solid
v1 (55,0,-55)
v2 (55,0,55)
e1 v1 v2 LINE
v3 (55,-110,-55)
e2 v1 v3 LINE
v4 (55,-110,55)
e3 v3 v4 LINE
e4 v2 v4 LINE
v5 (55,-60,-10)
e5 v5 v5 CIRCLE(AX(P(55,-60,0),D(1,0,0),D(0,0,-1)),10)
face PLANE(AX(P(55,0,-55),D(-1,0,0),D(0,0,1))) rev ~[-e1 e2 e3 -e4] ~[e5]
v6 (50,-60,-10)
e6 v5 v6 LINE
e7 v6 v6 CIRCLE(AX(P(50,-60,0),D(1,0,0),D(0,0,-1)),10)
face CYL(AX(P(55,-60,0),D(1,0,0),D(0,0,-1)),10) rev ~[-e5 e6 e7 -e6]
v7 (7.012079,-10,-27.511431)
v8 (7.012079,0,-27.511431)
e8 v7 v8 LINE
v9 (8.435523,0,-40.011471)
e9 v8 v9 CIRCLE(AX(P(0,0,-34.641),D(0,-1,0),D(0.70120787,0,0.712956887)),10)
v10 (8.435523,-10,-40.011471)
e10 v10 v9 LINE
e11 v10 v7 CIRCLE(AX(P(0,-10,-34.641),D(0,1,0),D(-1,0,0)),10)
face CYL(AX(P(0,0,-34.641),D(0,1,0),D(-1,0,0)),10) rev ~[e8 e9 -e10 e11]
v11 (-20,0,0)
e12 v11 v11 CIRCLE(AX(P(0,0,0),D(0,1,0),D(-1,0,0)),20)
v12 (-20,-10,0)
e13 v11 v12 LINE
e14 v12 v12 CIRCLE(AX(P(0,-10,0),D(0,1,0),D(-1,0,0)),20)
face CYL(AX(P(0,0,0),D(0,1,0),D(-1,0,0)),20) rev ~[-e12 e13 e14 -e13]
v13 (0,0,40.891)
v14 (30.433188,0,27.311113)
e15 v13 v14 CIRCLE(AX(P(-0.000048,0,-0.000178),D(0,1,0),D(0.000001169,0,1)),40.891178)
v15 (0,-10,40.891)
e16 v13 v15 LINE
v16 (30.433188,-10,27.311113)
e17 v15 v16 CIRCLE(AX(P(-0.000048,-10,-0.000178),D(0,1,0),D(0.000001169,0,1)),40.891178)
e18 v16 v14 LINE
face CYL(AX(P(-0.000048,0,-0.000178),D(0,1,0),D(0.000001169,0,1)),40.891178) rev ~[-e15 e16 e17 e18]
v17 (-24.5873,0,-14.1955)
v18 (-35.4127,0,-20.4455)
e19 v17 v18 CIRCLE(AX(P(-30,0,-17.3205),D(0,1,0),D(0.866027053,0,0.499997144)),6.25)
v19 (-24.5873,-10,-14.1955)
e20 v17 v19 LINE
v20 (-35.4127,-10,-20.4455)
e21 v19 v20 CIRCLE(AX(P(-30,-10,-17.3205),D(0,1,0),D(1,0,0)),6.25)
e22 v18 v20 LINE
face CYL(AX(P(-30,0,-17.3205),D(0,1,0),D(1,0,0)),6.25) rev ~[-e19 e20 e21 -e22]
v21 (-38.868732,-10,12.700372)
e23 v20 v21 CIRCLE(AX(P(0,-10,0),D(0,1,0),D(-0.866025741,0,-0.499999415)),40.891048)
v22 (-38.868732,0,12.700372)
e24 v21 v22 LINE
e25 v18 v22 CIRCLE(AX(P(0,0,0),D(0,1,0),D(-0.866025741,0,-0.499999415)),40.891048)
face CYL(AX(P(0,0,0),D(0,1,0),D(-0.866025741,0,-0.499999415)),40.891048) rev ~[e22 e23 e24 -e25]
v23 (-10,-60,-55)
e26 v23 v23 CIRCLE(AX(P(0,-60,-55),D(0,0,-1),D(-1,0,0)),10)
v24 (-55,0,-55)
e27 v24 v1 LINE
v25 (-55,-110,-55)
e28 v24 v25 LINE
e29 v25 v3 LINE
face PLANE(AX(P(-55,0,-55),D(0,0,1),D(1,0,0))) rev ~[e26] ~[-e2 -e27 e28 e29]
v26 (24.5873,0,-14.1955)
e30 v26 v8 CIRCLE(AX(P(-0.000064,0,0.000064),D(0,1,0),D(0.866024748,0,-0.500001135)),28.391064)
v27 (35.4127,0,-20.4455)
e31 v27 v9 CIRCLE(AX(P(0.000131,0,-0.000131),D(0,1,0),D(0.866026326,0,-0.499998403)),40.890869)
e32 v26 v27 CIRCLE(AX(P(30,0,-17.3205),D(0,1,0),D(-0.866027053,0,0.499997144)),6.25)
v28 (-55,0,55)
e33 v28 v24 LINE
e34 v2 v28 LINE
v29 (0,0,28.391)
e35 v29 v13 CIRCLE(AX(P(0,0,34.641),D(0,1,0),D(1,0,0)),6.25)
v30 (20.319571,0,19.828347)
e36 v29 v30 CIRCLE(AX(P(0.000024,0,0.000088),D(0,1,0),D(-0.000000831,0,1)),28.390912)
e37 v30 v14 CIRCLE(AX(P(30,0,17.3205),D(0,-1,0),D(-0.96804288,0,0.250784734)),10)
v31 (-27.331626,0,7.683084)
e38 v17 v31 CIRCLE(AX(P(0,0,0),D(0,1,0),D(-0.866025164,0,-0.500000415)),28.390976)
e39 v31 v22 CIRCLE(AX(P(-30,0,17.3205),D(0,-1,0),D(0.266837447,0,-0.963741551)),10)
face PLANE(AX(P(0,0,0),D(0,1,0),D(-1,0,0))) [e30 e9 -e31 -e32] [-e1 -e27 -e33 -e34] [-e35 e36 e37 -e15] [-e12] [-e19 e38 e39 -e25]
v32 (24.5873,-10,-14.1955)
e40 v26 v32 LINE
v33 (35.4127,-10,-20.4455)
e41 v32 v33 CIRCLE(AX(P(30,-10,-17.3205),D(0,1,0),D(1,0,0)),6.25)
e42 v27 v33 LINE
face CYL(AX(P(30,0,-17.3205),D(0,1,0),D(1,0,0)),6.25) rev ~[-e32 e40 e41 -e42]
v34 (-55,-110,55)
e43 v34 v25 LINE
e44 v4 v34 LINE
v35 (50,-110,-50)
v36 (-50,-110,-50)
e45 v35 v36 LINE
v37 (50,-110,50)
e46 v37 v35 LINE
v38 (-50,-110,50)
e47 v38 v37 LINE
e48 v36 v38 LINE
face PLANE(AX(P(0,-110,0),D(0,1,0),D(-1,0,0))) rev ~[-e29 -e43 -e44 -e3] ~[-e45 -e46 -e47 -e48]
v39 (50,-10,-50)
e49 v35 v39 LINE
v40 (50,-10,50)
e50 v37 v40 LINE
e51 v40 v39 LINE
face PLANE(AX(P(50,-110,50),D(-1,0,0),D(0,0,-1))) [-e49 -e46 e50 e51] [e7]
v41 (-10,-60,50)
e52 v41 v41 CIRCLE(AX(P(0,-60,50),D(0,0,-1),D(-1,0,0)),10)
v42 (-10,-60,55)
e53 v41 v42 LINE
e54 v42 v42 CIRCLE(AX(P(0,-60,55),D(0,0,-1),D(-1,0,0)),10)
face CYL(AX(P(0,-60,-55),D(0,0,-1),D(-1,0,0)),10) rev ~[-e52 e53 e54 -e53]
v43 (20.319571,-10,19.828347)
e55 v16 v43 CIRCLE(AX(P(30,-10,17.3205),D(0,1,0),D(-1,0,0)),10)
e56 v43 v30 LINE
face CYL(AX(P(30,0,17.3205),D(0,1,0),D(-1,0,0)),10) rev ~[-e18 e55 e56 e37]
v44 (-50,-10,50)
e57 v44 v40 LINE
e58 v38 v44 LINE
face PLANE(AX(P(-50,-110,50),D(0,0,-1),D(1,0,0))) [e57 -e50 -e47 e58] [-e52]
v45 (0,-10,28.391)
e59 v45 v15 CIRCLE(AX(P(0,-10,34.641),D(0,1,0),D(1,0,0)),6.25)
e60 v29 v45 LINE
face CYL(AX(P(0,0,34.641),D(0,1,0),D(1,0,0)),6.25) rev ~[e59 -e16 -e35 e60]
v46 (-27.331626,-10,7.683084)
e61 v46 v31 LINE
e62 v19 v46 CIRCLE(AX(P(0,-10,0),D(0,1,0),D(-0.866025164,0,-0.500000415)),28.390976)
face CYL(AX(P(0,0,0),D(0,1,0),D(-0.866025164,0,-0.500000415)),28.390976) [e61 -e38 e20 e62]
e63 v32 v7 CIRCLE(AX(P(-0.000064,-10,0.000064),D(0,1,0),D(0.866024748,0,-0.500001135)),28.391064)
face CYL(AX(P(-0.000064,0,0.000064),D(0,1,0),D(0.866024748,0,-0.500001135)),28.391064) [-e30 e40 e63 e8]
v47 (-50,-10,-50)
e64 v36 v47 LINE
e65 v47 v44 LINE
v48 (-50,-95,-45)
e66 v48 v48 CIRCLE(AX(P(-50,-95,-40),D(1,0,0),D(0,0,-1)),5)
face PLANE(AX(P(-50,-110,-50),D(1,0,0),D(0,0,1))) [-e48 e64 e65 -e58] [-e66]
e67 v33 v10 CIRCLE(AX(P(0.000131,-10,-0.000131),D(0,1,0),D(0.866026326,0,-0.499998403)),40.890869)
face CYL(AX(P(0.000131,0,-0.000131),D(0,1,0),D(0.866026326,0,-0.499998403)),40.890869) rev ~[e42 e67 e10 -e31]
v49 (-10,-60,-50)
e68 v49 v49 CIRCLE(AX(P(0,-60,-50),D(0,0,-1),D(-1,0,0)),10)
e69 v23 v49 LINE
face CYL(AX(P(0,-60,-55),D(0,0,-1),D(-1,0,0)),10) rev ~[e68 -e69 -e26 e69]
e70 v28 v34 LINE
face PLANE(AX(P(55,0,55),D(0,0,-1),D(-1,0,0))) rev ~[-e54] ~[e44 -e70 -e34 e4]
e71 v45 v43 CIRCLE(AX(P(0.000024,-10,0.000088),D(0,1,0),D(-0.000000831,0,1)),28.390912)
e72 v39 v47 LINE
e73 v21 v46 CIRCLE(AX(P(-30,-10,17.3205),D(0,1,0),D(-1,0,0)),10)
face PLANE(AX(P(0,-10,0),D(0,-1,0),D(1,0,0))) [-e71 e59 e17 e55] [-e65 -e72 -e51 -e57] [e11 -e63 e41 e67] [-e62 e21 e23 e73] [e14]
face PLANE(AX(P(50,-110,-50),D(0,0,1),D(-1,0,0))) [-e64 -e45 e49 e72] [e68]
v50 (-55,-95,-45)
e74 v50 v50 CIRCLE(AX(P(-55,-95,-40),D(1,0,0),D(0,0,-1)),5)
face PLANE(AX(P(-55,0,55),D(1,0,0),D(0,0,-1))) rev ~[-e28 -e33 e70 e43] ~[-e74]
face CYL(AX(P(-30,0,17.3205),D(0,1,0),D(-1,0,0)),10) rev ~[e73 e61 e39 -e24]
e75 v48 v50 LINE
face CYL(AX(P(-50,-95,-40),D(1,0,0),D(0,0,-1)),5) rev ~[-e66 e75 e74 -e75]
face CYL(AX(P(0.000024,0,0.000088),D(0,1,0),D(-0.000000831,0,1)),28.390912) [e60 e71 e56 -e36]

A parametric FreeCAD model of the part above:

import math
import FreeCAD as App
import Part
import Sketcher
from FreeCAD import Vector
Q = App.Units.Quantity


def add_polygon(sketch, points):
    """Adds a closed chain of lines whose ends are joined by coincident constraints."""
    first, n = sketch.GeometryCount, len(points)
    for a, b in zip(points, points[1:] + points[:1]):
        sketch.addGeometry(Part.LineSegment(App.Vector(*a, 0), App.Vector(*b, 0)), False)
    for i in range(n):
        sketch.addConstraint(Sketcher.Constraint("Coincident", first + i, 2, first + (i + 1) % n, 1))

doc = App.newDocument("Part")
params = doc.addObject("Spreadsheet::Sheet", "Params")
for row, (alias, value) in enumerate([
    ("sketch1_diameter", "20 mm"),
    ("sketch1_diameter2", "40 mm"),
    ("pad1_length", "110 mm"),
    ("sketch2_radius", "6.25 mm"),
    ("sketch3_width", "100 mm"),
    ("pocket2_length", "100 mm"),
    ("sketch4_diameter", "20 mm"),
    ("sketch5_diameter", "20 mm"),
    ("sketch6_diameter", "10 mm"),
], start=1):
    params.set(f"A{row}", alias)
    params.set(f"B{row}", "=" + value)
    params.setAlias(f"B{row}", alias)

body = doc.addObject("PartDesign::Body", "Body")

# Sketch on XZ plane
sketch1 = body.newObject("Sketcher::SketchObject", "Sketch")
sketch1.AttachmentSupport = (doc.getObject("XZ_Plane"), [""])
sketch1.MapMode = "FlatFace"
add_polygon(sketch1, [(55, -55), (-55, -55), (-55, 55), (55, 55)])  # lines 0-3
sketch1.addGeometry(Part.Circle(Vector(0, -35, 0), Vector(0, 0, 1), 10), False)  # 4
sketch1.addGeometry(Part.Circle(Vector(30, 17, 0), Vector(0, 0, 1), 10), False)  # 5
sketch1.addGeometry(Part.Circle(Vector(0, 0, 0), Vector(0, 0, 1), 20), False)  # 6
sketch1.addGeometry(Part.Circle(Vector(-30, 17, 0), Vector(0, 0, 1), 10), False)  # 7
sketch1.addConstraint([
    Sketcher.Constraint("Horizontal", 0),
    Sketcher.Constraint("Vertical", 1),
    Sketcher.Constraint("Horizontal", 2),
    Sketcher.Constraint("Vertical", 3),
    Sketcher.Constraint("Coincident", 6, 3, -1, 1),
    Sketcher.Constraint("Equal", 4, 5),
    Sketcher.Constraint("Equal", 5, 7),
    Sketcher.Constraint("Symmetric", 0, 2, 2, 2, -1, 1),
    Sketcher.Constraint("Symmetric", 5, 3, 7, 3, -2),
    Sketcher.Constraint("PointOnObject", 4, 3, -2),
    Sketcher.Constraint("Equal", 2, 1),
    Sketcher.Constraint("Diameter", 4, Q("20 mm")),
    Sketcher.Constraint("Diameter", 6, Q("40 mm")),
    Sketcher.Constraint("DistanceX", 0, 2, -1, 1, Q("55 mm")),
    Sketcher.Constraint("DistanceX", 7, 3, 5, 3, Q("60 mm")),
    Sketcher.Constraint("DistanceY", 4, 3, -1, 1, Q("34.641 mm")),
    Sketcher.Constraint("DistanceY", -1, 1, 5, 3, Q("17.3205 mm")),
])
sketch1.setExpression("Constraints[15]", "Params.sketch1_diameter")
sketch1.setExpression("Constraints[16]", "Params.sketch1_diameter2")
pad1 = body.newObject("PartDesign::Pad", "Pad")
pad1.Profile = sketch1
pad1.setExpression("Length", "Params.pad1_length")

# Sketch on XZ plane
sketch2 = body.newObject("Sketcher::SketchObject", "Sketch001")
sketch2.AttachmentSupport = (doc.getObject("XZ_Plane"), [""])
sketch2.MapMode = "FlatFace"
sketch2.addGeometry([
    Part.ArcOfCircle(Part.Circle(Vector(0, 0, 0), Vector(0, 0, 1), 28), math.radians(150), math.radians(210)),  # 0
    Part.ArcOfCircle(Part.Circle(Vector(-30, -17, 0), Vector(0, 0, 1), 6), math.radians(-150), math.radians(30)),  # 1
    Part.ArcOfCircle(Part.Circle(Vector(0, 0, 0), Vector(0, 0, 1), 41), math.radians(150), math.radians(210)),  # 2
    Part.ArcOfCircle(Part.Circle(Vector(-30, 17, 0), Vector(0, 0, 1), 6), math.radians(150), math.radians(330)),  # 3
    Part.ArcOfCircle(Part.Circle(Vector(0, 0, 0), Vector(0, 0, 1), 28), math.radians(30), math.radians(90)),  # 4
    Part.ArcOfCircle(Part.Circle(Vector(0, 35, 0), Vector(0, 0, 1), 6), math.radians(90), math.radians(270)),  # 5
    Part.ArcOfCircle(Part.Circle(Vector(0, 0, 0), Vector(0, 0, 1), 41), math.radians(30), math.radians(90)),  # 6
    Part.ArcOfCircle(Part.Circle(Vector(30, 17, 0), Vector(0, 0, 1), 6), math.radians(30), math.radians(210)),  # 7
    Part.ArcOfCircle(Part.Circle(Vector(0, 0, 0), Vector(0, 0, 1), 28), math.radians(-90), math.radians(-30)),  # 8
    Part.ArcOfCircle(Part.Circle(Vector(30, -17, 0), Vector(0, 0, 1), 6), math.radians(-30), math.radians(150)),  # 9
    Part.ArcOfCircle(Part.Circle(Vector(0, 0, 0), Vector(0, 0, 1), 41), math.radians(-90), math.radians(-30)),  # 10
    Part.ArcOfCircle(Part.Circle(Vector(0, -35, 0), Vector(0, 0, 1), 6), math.radians(-90), math.radians(90)),  # 11
], False)
sketch2.addConstraint([
    Sketcher.Constraint("Tangent", 0, 2, 1, 2),
    Sketcher.Constraint("Tangent", 1, 1, 2, 2),
    Sketcher.Constraint("Tangent", 2, 1, 3, 1),
    Sketcher.Constraint("Tangent", 3, 2, 0, 1),
    Sketcher.Constraint("Tangent", 4, 2, 5, 2),
    Sketcher.Constraint("Tangent", 5, 1, 6, 2),
    Sketcher.Constraint("Tangent", 6, 1, 7, 1),
    Sketcher.Constraint("Tangent", 7, 2, 4, 1),
    Sketcher.Constraint("Tangent", 8, 2, 9, 2),
    Sketcher.Constraint("Tangent", 9, 1, 10, 2),
    Sketcher.Constraint("Tangent", 10, 1, 11, 1),
    Sketcher.Constraint("Tangent", 11, 2, 8, 1),
    Sketcher.Constraint("Coincident", 0, 3, -1, 1),
    Sketcher.Constraint("Coincident", 2, 3, -1, 1),
    Sketcher.Constraint("Coincident", 4, 3, -1, 1),
    Sketcher.Constraint("Coincident", 6, 3, -1, 1),
    Sketcher.Constraint("Coincident", 8, 3, -1, 1),
    Sketcher.Constraint("Coincident", 10, 3, -1, 1),
    Sketcher.Constraint("Equal", 0, 4),
    Sketcher.Constraint("Equal", 3, 5),
    Sketcher.Constraint("Equal", 4, 8),
    Sketcher.Constraint("Equal", 7, 9),
    Sketcher.Constraint("PointOnObject", 5, 3, -2),
    Sketcher.Constraint("PointOnObject", 11, 3, -2),
    Sketcher.Constraint("Horizontal", 3, 3, 7, 3),
    Sketcher.Constraint("Horizontal", 1, 3, 9, 3),
    Sketcher.Constraint("Vertical", 1, 3, 3, 3),
    Sketcher.Constraint("Radius", 1, Q("6.25 mm")),
    Sketcher.Constraint("DistanceX", 1, 3, -1, 1, Q("30 mm")),
    Sketcher.Constraint("Radius", 0, Q("28.391 mm")),
])
sketch2.setExpression("Constraints[27]", "Params.sketch2_radius")
pocket1 = body.newObject("PartDesign::Pocket", "Pocket")
pocket1.Profile = sketch2
pocket1.Type = "ThroughAll"
pocket1.Reversed = True

# Sketch on XZ plane
sketch3 = body.newObject("Sketcher::SketchObject", "Sketch002")
sketch3.AttachmentSupport = (doc.getObject("XZ_Plane"), [""])
sketch3.MapMode = "FlatFace"
sketch3.AttachmentOffset = App.Placement(Vector(0, 0, 110), App.Rotation())
add_polygon(sketch3, [(50, 50), (-50, 50), (-50, -50), (50, -50)])  # lines 0-3
sketch3.addConstraint([
    Sketcher.Constraint("Horizontal", 0),
    Sketcher.Constraint("Vertical", 1),
    Sketcher.Constraint("Horizontal", 2),
    Sketcher.Constraint("Vertical", 3),
    Sketcher.Constraint("Symmetric", 0, 2, 2, 2, -1, 1),
    Sketcher.Constraint("Equal", 2, 1),
    Sketcher.Constraint("DistanceX", 0, 2, 0, 1, Q("100 mm")),
])
sketch3.setExpression("Constraints[10]", "Params.sketch3_width")
pocket2 = body.newObject("PartDesign::Pocket", "Pocket001")
pocket2.Profile = sketch3
pocket2.setExpression("Length", "Params.pocket2_length")

# Sketch on XY plane
sketch4 = body.newObject("Sketcher::SketchObject", "Sketch003")
sketch4.AttachmentSupport = (doc.getObject("XY_Plane"), [""])
sketch4.MapMode = "FlatFace"
sketch4.AttachmentOffset = App.Placement(Vector(0, 0, -55), App.Rotation())
sketch4.addGeometry(Part.Circle(Vector(0, -60, 0), Vector(0, 0, 1), 10), False)
sketch4.addConstraint([
    Sketcher.Constraint("PointOnObject", 0, 3, -2),
    Sketcher.Constraint("Diameter", 0, Q("20 mm")),
    Sketcher.Constraint("DistanceY", 0, 3, -1, 1, Q("60 mm")),
])
sketch4.setExpression("Constraints[1]", "Params.sketch4_diameter")
pocket3 = body.newObject("PartDesign::Pocket", "Pocket002")
pocket3.Profile = sketch4
pocket3.Type = "ThroughAll"
pocket3.Reversed = True

# Sketch on YZ plane
sketch5 = body.newObject("Sketcher::SketchObject", "Sketch004")
sketch5.AttachmentSupport = (doc.getObject("YZ_Plane"), [""])
sketch5.MapMode = "FlatFace"
sketch5.AttachmentOffset = App.Placement(Vector(0, 0, 55), App.Rotation())
sketch5.addGeometry(Part.Circle(Vector(-60, 0, 0), Vector(0, 0, 1), 10), False)
sketch5.addConstraint([
    Sketcher.Constraint("PointOnObject", 0, 3, -1),
    Sketcher.Constraint("Diameter", 0, Q("20 mm")),
    Sketcher.Constraint("DistanceX", 0, 3, -1, 1, Q("60 mm")),
])
sketch5.setExpression("Constraints[1]", "Params.sketch5_diameter")
pocket4 = body.newObject("PartDesign::Pocket", "Pocket003")
pocket4.Profile = sketch5
pocket4.Type = "UpToFirst"

# Sketch on YZ plane
sketch6 = body.newObject("Sketcher::SketchObject", "Sketch005")
sketch6.AttachmentSupport = (doc.getObject("YZ_Plane"), [""])
sketch6.MapMode = "FlatFace"
sketch6.AttachmentOffset = App.Placement(Vector(0, 0, -50), App.Rotation())
sketch6.addGeometry(Part.Circle(Vector(-95, -40, 0), Vector(0, 0, 1), 5), False)
sketch6.addConstraint([
    Sketcher.Constraint("Diameter", 0, Q("10 mm")),
    Sketcher.Constraint("DistanceX", 0, 3, -1, 1, Q("95 mm")),
    Sketcher.Constraint("DistanceY", 0, 3, -1, 1, Q("40 mm")),
])
sketch6.setExpression("Constraints[0]", "Params.sketch6_diameter")
pocket5 = body.newObject("PartDesign::Pocket", "Pocket004")
pocket5.Profile = sketch6
pocket5.Type = "ThroughAll"

doc.recompute()
